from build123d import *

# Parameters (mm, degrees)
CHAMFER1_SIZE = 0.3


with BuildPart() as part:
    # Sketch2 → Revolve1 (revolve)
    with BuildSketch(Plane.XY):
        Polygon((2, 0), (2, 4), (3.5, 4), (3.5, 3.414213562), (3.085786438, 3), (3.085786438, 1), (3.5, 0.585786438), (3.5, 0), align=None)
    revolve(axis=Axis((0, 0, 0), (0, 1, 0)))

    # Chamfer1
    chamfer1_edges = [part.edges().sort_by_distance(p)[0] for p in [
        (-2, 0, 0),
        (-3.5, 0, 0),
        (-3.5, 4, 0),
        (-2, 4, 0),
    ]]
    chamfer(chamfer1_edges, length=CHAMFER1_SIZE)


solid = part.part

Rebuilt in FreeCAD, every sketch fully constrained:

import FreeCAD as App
import Part
import Sketcher

V = App.Vector


def edges_at(feature, points):
    """Names of the edges that pass closest to the given points."""
    edges = feature.Shape.Edges
    near = lambda p: min(range(len(edges)), key=lambda i: edges[i].distToShape(Part.Vertex(*p))[0])
    return sorted({f"Edge{near(p) + 1}" for p in points})

doc = App.newDocument("Part")
params = doc.addObject("Spreadsheet::Sheet", "Params")
for row, (alias, value) in enumerate([
    ("sketch1_height", "4 mm"),
    ("sketch1_height2", "2 mm"),
    ("sketch1_width", "1.5 mm"),
    ("revolution_angle", "360 deg"),
    ("chamfer_size", "0.3 mm"),
], start=1):
    params.set(f"A{row}", alias)
    params.set(f"B{row}", "=" + value)
    params.setAlias(f"B{row}", alias)

body = doc.addObject("PartDesign::Body", "Body")

# Sketch on XY plane
sketch1 = doc.addObject("Sketcher::SketchObject", "Sketch")
body.addObject(sketch1)
sketch1.AttachmentSupport = (doc.XY_Plane, [""])
sketch1.MapMode = "FlatFace"
sketch1.addGeometry([
    Part.LineSegment(V(2, 4, 0), V(2, 0, 0)),  # 0
    Part.LineSegment(V(2, 0, 0), V(3.5, 0, 0)),  # 1
    Part.LineSegment(V(3.5, 0, 0), V(3.5, 0.585786, 0)),  # 2
    Part.LineSegment(V(3.5, 0.585786, 0), V(3.085786, 1, 0)),  # 3
    Part.LineSegment(V(3.085786, 1, 0), V(3.085786, 3, 0)),  # 4
    Part.LineSegment(V(3.085786, 3, 0), V(3.5, 3.414214, 0)),  # 5
    Part.LineSegment(V(3.5, 3.414214, 0), V(3.5, 4, 0)),  # 6
    Part.LineSegment(V(3.5, 4, 0), V(2, 4, 0)),  # 7
], False)
sketch1.addConstraint([
    Sketcher.Constraint("Coincident", 0, 2, 1, 1),
    Sketcher.Constraint("Coincident", 1, 2, 2, 1),
    Sketcher.Constraint("Coincident", 2, 2, 3, 1),
    Sketcher.Constraint("Coincident", 3, 2, 4, 1),
    Sketcher.Constraint("Coincident", 4, 2, 5, 1),
    Sketcher.Constraint("Coincident", 5, 2, 6, 1),
    Sketcher.Constraint("Coincident", 6, 2, 7, 1),
    Sketcher.Constraint("Coincident", 7, 2, 0, 1),
    Sketcher.Constraint("Vertical", 0),
    Sketcher.Constraint("Horizontal", 1),
    Sketcher.Constraint("Vertical", 2),
    Sketcher.Constraint("Vertical", 4),
    Sketcher.Constraint("Vertical", 6),
    Sketcher.Constraint("Horizontal", 7),
    Sketcher.Constraint("PointOnObject", 0, 2, -1),
    Sketcher.Constraint("Perpendicular", 3, 5),
    Sketcher.Constraint("Vertical", 2, 2, 5, 2),
    Sketcher.Constraint("Equal", 2, 6),
    Sketcher.Constraint("Equal", 3, 5),
    Sketcher.Constraint("DistanceY", 0, 2, 0, 1, 4.0),
    Sketcher.Constraint("DistanceY", 4, 1, 4, 2, 2.0),
    Sketcher.Constraint("DistanceX", 1, 1, 1, 2, 1.5),
    Sketcher.Constraint("DistanceX", -1, 1, 0, 2, 2.0),
    Sketcher.Constraint("DistanceY", 2, 1, 2, 2, 0.585786),
])
sketch1.setExpression("Constraints[19]", "Params.sketch1_height")
sketch1.setExpression("Constraints[20]", "Params.sketch1_height2")
sketch1.setExpression("Constraints[21]", "Params.sketch1_width")
revolution = doc.addObject("PartDesign::Revolution", "Revolution")
body.addObject(revolution)
revolution.Profile = sketch1
revolution.ReferenceAxis = (sketch1, ["V_Axis"])
revolution.setExpression("Angle", "Params.revolution_angle")
doc.recompute()

chamfer = doc.addObject("PartDesign::Chamfer", "Chamfer")
body.addObject(chamfer)
chamfer.Base = (revolution, edges_at(revolution, [
    (-2, 0, 0),
    (-3.5, 0, 0),
    (-3.5, 4, 0),
    (-2, 4, 0),
]))
chamfer.setExpression("Size", "Params.chamfer_size")

doc.recompute()
